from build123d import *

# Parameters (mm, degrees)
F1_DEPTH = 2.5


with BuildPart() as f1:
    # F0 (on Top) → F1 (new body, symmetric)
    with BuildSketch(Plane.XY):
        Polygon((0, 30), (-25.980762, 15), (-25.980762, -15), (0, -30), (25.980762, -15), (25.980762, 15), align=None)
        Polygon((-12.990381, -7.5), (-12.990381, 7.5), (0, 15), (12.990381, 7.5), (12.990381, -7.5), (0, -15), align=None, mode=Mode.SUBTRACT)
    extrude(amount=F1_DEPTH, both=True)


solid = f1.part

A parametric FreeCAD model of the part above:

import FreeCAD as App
import Part
import Sketcher

V = App.Vector
Q = App.Units.Quantity


def add_polygon(sketch, points):
    """Adds a closed chain of lines whose ends are joined by coincident constraints."""
    first, n = sketch.GeometryCount, len(points)
    for a, b in zip(points, points[1:] + points[:1]):
        sketch.addGeometry(Part.LineSegment(App.Vector(*a, 0), App.Vector(*b, 0)), False)
    for i in range(n):
        sketch.addConstraint(Sketcher.Constraint("Coincident", first + i, 2, first + (i + 1) % n, 1))

doc = App.newDocument("Part")
body = doc.addObject("PartDesign::Body", "Body")

# Sketch on XY plane
sketch1 = body.newObject("Sketcher::SketchObject", "Sketch")
sketch1.AttachmentSupport = (doc.getObject("XY_Plane"), [""])
sketch1.MapMode = "FlatFace"
add_polygon(sketch1, [(0, 30), (-26, 15), (-26, -15), (0, -30), (26, -15), (26, 15)])  # lines 0-5
add_polygon(sketch1, [(0, -15), (-13, -8), (-13, 8), (0, 15), (13, 8), (13, -8)])  # lines 6-11
sketch1.addConstraint(Sketcher.Constraint("Vertical", 1))
sketch1.addConstraint(Sketcher.Constraint("Vertical", 4))
sketch1.addConstraint(Sketcher.Constraint("Vertical", 7))
sketch1.addConstraint(Sketcher.Constraint("Vertical", 10))
sketch1.addConstraint(Sketcher.Constraint("Symmetric", 0, 2, 3, 2, -1, 1))
sketch1.addConstraint(Sketcher.Constraint("Symmetric", 2, 2, 5, 2, -1, 1))
sketch1.addConstraint(Sketcher.Constraint("Symmetric", 6, 2, 9, 2, -1, 1))
sketch1.addConstraint(Sketcher.Constraint("Symmetric", 8, 2, 11, 2, -1, 1))
sketch1.addConstraint(Sketcher.Constraint("PointOnObject", 2, 2, -2))
sketch1.addConstraint(Sketcher.Constraint("PointOnObject", 8, 2, -2))
sketch1.addConstraint(Sketcher.Constraint("Parallel", 2, 5))
sketch1.addConstraint(Sketcher.Constraint("Parallel", 5, 6))
sketch1.addConstraint(Sketcher.Constraint("Parallel", 3, 8))
sketch1.addConstraint(Sketcher.Constraint("Parallel", 8, 11))
sketch1.addConstraint(Sketcher.Constraint("Horizontal", 1, 2, 3, 2))
sketch1.addConstraint(Sketcher.Constraint("Horizontal", 4, 2, 8, 2))
sketch1.addConstraint(Sketcher.Constraint("DistanceY", 1, 2, 1, 1, Q("30 mm")))
sketch1.addConstraint(Sketcher.Constraint("DistanceY", 7, 1, 7, 2, Q("15 mm")))
sketch1.addConstraint(Sketcher.Constraint("Angle", 0, Q("-150 deg")))
sketch1.addConstraint(Sketcher.Constraint("Distance", 0, Q("30 mm")))
pad1 = body.newObject("PartDesign::Pad", "Pad")
pad1.Profile = sketch1
pad1.Length = 5
pad1.Midplane = True

doc.recompute()
